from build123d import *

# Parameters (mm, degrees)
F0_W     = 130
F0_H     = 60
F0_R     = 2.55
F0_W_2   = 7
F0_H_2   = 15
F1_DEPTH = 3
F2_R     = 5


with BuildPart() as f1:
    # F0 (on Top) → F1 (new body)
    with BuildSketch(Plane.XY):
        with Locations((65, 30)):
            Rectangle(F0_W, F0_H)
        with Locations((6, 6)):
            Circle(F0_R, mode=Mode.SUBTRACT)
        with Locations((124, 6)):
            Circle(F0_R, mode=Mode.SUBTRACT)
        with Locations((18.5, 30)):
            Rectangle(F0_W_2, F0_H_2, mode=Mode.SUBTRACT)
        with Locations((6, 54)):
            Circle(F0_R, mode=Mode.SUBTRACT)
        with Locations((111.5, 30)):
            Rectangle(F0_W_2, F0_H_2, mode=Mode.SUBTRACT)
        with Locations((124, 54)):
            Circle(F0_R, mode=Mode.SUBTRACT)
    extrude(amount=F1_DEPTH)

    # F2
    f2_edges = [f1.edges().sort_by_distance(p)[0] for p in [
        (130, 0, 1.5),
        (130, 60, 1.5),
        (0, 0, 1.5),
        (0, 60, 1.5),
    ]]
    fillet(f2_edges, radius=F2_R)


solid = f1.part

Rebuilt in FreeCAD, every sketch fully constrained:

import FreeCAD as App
import Part
import Sketcher

V = App.Vector
Q = App.Units.Quantity


def edges_at(feature, points):
    """Names of the edges that pass closest to the given points."""
    edges = feature.Shape.Edges
    near = lambda p: min(range(len(edges)), key=lambda i: edges[i].distToShape(Part.Vertex(*p))[0])
    return sorted({f"Edge{near(p) + 1}" for p in points})


def add_polygon(sketch, points):
    """Adds a closed chain of lines whose ends are joined by coincident constraints."""
    first, n = sketch.GeometryCount, len(points)
    for a, b in zip(points, points[1:] + points[:1]):
        sketch.addGeometry(Part.LineSegment(App.Vector(*a, 0), App.Vector(*b, 0)), False)
    for i in range(n):
        sketch.addConstraint(Sketcher.Constraint("Coincident", first + i, 2, first + (i + 1) % n, 1))

doc = App.newDocument("Part")
body = doc.addObject("PartDesign::Body", "Body")

# Sketch on XY plane
sketch1 = doc.addObject("Sketcher::SketchObject", "Sketch")
body.addObject(sketch1)
sketch1.AttachmentSupport = (doc.XY_Plane, [""])
sketch1.MapMode = "FlatFace"
add_polygon(sketch1, [(0, 60), (0, 0), (130, 0), (130, 60)])  # lines 0-3
sketch1.addGeometry(Part.Circle(V(6, 6, 0), V(0, 0, 1), 2.5), False)  # 4
sketch1.addGeometry(Part.Circle(V(124, 6, 0), V(0, 0, 1), 2.5), False)  # 5
add_polygon(sketch1, [(22, 22.5), (15, 22.5), (15, 37.5), (22, 37.5)])  # lines 6-9
sketch1.addGeometry(Part.Circle(V(6, 54, 0), V(0, 0, 1), 2.5), False)  # 10
add_polygon(sketch1, [(115, 22.5), (108, 22.5), (108, 37.5), (115, 37.5)])  # lines 11-14
sketch1.addGeometry(Part.Circle(V(124, 54, 0), V(0, 0, 1), 2.5), False)  # 15
sketch1.addConstraint(Sketcher.Constraint("Vertical", 0))
sketch1.addConstraint(Sketcher.Constraint("Horizontal", 1))
sketch1.addConstraint(Sketcher.Constraint("Vertical", 2))
sketch1.addConstraint(Sketcher.Constraint("Horizontal", 3))
sketch1.addConstraint(Sketcher.Constraint("Horizontal", 6))
sketch1.addConstraint(Sketcher.Constraint("Vertical", 7))
sketch1.addConstraint(Sketcher.Constraint("Horizontal", 8))
sketch1.addConstraint(Sketcher.Constraint("Vertical", 9))
sketch1.addConstraint(Sketcher.Constraint("Horizontal", 11))
sketch1.addConstraint(Sketcher.Constraint("Vertical", 12))
sketch1.addConstraint(Sketcher.Constraint("Horizontal", 13))
sketch1.addConstraint(Sketcher.Constraint("Vertical", 14))
sketch1.addConstraint(Sketcher.Constraint("Coincident", 0, 2, -1, 1))
sketch1.addConstraint(Sketcher.Constraint("Equal", 4, 5))
sketch1.addConstraint(Sketcher.Constraint("Equal", 5, 10))
sketch1.addConstraint(Sketcher.Constraint("Equal", 10, 15))
sketch1.addConstraint(Sketcher.Constraint("Horizontal", 4, 3, 5, 3))
sketch1.addConstraint(Sketcher.Constraint("Horizontal", 10, 3, 15, 3))
sketch1.addConstraint(Sketcher.Constraint("Horizontal", 9, 2, 11, 2))
sketch1.addConstraint(Sketcher.Constraint("Horizontal", 8, 2, 12, 2))
sketch1.addConstraint(Sketcher.Constraint("Vertical", 4, 3, 10, 3))
sketch1.addConstraint(Sketcher.Constraint("Vertical", 5, 3, 15, 3))
sketch1.addConstraint(Sketcher.Constraint("Equal", 8, 11))
sketch1.addConstraint(Sketcher.Constraint("Diameter", 4, Q("5.1 mm")))
sketch1.addConstraint(Sketcher.Constraint("DistanceX", 1, 1, 1, 2, Q("130 mm")))
sketch1.addConstraint(Sketcher.Constraint("DistanceX", 6, 2, 6, 1, Q("7 mm")))
sketch1.addConstraint(Sketcher.Constraint("DistanceY", 0, 2, 0, 1, Q("60 mm")))
sketch1.addConstraint(Sketcher.Constraint("DistanceY", 7, 1, 7, 2, Q("15 mm")))
sketch1.addConstraint(Sketcher.Constraint("DistanceX", -1, 1, 4, 3, Q("6 mm")))
sketch1.addConstraint(Sketcher.Constraint("DistanceY", -1, 1, 4, 3, Q("6 mm")))
sketch1.addConstraint(Sketcher.Constraint("DistanceX", -1, 1, 5, 3, Q("124 mm")))
sketch1.addConstraint(Sketcher.Constraint("DistanceY", -1, 1, 10, 3, Q("54 mm")))
sketch1.addConstraint(Sketcher.Constraint("DistanceX", -1, 1, 6, 2, Q("15 mm")))
sketch1.addConstraint(Sketcher.Constraint("DistanceX", -1, 1, 11, 2, Q("108 mm")))
sketch1.addConstraint(Sketcher.Constraint("DistanceY", -1, 1, 6, 2, Q("22.5 mm")))
pad1 = doc.addObject("PartDesign::Pad", "Pad")
body.addObject(pad1)
pad1.Profile = sketch1
pad1.Length = 3
doc.recompute()

fillet = doc.addObject("PartDesign::Fillet", "Fillet")
body.addObject(fillet)
fillet.Base = (pad1, edges_at(pad1, [
    (130, 0, 1.5),
    (130, 60, 1.5),
    (0, 0, 1.5),
    (0, 60, 1.5),
]))
fillet.Radius = 5

doc.recompute()
